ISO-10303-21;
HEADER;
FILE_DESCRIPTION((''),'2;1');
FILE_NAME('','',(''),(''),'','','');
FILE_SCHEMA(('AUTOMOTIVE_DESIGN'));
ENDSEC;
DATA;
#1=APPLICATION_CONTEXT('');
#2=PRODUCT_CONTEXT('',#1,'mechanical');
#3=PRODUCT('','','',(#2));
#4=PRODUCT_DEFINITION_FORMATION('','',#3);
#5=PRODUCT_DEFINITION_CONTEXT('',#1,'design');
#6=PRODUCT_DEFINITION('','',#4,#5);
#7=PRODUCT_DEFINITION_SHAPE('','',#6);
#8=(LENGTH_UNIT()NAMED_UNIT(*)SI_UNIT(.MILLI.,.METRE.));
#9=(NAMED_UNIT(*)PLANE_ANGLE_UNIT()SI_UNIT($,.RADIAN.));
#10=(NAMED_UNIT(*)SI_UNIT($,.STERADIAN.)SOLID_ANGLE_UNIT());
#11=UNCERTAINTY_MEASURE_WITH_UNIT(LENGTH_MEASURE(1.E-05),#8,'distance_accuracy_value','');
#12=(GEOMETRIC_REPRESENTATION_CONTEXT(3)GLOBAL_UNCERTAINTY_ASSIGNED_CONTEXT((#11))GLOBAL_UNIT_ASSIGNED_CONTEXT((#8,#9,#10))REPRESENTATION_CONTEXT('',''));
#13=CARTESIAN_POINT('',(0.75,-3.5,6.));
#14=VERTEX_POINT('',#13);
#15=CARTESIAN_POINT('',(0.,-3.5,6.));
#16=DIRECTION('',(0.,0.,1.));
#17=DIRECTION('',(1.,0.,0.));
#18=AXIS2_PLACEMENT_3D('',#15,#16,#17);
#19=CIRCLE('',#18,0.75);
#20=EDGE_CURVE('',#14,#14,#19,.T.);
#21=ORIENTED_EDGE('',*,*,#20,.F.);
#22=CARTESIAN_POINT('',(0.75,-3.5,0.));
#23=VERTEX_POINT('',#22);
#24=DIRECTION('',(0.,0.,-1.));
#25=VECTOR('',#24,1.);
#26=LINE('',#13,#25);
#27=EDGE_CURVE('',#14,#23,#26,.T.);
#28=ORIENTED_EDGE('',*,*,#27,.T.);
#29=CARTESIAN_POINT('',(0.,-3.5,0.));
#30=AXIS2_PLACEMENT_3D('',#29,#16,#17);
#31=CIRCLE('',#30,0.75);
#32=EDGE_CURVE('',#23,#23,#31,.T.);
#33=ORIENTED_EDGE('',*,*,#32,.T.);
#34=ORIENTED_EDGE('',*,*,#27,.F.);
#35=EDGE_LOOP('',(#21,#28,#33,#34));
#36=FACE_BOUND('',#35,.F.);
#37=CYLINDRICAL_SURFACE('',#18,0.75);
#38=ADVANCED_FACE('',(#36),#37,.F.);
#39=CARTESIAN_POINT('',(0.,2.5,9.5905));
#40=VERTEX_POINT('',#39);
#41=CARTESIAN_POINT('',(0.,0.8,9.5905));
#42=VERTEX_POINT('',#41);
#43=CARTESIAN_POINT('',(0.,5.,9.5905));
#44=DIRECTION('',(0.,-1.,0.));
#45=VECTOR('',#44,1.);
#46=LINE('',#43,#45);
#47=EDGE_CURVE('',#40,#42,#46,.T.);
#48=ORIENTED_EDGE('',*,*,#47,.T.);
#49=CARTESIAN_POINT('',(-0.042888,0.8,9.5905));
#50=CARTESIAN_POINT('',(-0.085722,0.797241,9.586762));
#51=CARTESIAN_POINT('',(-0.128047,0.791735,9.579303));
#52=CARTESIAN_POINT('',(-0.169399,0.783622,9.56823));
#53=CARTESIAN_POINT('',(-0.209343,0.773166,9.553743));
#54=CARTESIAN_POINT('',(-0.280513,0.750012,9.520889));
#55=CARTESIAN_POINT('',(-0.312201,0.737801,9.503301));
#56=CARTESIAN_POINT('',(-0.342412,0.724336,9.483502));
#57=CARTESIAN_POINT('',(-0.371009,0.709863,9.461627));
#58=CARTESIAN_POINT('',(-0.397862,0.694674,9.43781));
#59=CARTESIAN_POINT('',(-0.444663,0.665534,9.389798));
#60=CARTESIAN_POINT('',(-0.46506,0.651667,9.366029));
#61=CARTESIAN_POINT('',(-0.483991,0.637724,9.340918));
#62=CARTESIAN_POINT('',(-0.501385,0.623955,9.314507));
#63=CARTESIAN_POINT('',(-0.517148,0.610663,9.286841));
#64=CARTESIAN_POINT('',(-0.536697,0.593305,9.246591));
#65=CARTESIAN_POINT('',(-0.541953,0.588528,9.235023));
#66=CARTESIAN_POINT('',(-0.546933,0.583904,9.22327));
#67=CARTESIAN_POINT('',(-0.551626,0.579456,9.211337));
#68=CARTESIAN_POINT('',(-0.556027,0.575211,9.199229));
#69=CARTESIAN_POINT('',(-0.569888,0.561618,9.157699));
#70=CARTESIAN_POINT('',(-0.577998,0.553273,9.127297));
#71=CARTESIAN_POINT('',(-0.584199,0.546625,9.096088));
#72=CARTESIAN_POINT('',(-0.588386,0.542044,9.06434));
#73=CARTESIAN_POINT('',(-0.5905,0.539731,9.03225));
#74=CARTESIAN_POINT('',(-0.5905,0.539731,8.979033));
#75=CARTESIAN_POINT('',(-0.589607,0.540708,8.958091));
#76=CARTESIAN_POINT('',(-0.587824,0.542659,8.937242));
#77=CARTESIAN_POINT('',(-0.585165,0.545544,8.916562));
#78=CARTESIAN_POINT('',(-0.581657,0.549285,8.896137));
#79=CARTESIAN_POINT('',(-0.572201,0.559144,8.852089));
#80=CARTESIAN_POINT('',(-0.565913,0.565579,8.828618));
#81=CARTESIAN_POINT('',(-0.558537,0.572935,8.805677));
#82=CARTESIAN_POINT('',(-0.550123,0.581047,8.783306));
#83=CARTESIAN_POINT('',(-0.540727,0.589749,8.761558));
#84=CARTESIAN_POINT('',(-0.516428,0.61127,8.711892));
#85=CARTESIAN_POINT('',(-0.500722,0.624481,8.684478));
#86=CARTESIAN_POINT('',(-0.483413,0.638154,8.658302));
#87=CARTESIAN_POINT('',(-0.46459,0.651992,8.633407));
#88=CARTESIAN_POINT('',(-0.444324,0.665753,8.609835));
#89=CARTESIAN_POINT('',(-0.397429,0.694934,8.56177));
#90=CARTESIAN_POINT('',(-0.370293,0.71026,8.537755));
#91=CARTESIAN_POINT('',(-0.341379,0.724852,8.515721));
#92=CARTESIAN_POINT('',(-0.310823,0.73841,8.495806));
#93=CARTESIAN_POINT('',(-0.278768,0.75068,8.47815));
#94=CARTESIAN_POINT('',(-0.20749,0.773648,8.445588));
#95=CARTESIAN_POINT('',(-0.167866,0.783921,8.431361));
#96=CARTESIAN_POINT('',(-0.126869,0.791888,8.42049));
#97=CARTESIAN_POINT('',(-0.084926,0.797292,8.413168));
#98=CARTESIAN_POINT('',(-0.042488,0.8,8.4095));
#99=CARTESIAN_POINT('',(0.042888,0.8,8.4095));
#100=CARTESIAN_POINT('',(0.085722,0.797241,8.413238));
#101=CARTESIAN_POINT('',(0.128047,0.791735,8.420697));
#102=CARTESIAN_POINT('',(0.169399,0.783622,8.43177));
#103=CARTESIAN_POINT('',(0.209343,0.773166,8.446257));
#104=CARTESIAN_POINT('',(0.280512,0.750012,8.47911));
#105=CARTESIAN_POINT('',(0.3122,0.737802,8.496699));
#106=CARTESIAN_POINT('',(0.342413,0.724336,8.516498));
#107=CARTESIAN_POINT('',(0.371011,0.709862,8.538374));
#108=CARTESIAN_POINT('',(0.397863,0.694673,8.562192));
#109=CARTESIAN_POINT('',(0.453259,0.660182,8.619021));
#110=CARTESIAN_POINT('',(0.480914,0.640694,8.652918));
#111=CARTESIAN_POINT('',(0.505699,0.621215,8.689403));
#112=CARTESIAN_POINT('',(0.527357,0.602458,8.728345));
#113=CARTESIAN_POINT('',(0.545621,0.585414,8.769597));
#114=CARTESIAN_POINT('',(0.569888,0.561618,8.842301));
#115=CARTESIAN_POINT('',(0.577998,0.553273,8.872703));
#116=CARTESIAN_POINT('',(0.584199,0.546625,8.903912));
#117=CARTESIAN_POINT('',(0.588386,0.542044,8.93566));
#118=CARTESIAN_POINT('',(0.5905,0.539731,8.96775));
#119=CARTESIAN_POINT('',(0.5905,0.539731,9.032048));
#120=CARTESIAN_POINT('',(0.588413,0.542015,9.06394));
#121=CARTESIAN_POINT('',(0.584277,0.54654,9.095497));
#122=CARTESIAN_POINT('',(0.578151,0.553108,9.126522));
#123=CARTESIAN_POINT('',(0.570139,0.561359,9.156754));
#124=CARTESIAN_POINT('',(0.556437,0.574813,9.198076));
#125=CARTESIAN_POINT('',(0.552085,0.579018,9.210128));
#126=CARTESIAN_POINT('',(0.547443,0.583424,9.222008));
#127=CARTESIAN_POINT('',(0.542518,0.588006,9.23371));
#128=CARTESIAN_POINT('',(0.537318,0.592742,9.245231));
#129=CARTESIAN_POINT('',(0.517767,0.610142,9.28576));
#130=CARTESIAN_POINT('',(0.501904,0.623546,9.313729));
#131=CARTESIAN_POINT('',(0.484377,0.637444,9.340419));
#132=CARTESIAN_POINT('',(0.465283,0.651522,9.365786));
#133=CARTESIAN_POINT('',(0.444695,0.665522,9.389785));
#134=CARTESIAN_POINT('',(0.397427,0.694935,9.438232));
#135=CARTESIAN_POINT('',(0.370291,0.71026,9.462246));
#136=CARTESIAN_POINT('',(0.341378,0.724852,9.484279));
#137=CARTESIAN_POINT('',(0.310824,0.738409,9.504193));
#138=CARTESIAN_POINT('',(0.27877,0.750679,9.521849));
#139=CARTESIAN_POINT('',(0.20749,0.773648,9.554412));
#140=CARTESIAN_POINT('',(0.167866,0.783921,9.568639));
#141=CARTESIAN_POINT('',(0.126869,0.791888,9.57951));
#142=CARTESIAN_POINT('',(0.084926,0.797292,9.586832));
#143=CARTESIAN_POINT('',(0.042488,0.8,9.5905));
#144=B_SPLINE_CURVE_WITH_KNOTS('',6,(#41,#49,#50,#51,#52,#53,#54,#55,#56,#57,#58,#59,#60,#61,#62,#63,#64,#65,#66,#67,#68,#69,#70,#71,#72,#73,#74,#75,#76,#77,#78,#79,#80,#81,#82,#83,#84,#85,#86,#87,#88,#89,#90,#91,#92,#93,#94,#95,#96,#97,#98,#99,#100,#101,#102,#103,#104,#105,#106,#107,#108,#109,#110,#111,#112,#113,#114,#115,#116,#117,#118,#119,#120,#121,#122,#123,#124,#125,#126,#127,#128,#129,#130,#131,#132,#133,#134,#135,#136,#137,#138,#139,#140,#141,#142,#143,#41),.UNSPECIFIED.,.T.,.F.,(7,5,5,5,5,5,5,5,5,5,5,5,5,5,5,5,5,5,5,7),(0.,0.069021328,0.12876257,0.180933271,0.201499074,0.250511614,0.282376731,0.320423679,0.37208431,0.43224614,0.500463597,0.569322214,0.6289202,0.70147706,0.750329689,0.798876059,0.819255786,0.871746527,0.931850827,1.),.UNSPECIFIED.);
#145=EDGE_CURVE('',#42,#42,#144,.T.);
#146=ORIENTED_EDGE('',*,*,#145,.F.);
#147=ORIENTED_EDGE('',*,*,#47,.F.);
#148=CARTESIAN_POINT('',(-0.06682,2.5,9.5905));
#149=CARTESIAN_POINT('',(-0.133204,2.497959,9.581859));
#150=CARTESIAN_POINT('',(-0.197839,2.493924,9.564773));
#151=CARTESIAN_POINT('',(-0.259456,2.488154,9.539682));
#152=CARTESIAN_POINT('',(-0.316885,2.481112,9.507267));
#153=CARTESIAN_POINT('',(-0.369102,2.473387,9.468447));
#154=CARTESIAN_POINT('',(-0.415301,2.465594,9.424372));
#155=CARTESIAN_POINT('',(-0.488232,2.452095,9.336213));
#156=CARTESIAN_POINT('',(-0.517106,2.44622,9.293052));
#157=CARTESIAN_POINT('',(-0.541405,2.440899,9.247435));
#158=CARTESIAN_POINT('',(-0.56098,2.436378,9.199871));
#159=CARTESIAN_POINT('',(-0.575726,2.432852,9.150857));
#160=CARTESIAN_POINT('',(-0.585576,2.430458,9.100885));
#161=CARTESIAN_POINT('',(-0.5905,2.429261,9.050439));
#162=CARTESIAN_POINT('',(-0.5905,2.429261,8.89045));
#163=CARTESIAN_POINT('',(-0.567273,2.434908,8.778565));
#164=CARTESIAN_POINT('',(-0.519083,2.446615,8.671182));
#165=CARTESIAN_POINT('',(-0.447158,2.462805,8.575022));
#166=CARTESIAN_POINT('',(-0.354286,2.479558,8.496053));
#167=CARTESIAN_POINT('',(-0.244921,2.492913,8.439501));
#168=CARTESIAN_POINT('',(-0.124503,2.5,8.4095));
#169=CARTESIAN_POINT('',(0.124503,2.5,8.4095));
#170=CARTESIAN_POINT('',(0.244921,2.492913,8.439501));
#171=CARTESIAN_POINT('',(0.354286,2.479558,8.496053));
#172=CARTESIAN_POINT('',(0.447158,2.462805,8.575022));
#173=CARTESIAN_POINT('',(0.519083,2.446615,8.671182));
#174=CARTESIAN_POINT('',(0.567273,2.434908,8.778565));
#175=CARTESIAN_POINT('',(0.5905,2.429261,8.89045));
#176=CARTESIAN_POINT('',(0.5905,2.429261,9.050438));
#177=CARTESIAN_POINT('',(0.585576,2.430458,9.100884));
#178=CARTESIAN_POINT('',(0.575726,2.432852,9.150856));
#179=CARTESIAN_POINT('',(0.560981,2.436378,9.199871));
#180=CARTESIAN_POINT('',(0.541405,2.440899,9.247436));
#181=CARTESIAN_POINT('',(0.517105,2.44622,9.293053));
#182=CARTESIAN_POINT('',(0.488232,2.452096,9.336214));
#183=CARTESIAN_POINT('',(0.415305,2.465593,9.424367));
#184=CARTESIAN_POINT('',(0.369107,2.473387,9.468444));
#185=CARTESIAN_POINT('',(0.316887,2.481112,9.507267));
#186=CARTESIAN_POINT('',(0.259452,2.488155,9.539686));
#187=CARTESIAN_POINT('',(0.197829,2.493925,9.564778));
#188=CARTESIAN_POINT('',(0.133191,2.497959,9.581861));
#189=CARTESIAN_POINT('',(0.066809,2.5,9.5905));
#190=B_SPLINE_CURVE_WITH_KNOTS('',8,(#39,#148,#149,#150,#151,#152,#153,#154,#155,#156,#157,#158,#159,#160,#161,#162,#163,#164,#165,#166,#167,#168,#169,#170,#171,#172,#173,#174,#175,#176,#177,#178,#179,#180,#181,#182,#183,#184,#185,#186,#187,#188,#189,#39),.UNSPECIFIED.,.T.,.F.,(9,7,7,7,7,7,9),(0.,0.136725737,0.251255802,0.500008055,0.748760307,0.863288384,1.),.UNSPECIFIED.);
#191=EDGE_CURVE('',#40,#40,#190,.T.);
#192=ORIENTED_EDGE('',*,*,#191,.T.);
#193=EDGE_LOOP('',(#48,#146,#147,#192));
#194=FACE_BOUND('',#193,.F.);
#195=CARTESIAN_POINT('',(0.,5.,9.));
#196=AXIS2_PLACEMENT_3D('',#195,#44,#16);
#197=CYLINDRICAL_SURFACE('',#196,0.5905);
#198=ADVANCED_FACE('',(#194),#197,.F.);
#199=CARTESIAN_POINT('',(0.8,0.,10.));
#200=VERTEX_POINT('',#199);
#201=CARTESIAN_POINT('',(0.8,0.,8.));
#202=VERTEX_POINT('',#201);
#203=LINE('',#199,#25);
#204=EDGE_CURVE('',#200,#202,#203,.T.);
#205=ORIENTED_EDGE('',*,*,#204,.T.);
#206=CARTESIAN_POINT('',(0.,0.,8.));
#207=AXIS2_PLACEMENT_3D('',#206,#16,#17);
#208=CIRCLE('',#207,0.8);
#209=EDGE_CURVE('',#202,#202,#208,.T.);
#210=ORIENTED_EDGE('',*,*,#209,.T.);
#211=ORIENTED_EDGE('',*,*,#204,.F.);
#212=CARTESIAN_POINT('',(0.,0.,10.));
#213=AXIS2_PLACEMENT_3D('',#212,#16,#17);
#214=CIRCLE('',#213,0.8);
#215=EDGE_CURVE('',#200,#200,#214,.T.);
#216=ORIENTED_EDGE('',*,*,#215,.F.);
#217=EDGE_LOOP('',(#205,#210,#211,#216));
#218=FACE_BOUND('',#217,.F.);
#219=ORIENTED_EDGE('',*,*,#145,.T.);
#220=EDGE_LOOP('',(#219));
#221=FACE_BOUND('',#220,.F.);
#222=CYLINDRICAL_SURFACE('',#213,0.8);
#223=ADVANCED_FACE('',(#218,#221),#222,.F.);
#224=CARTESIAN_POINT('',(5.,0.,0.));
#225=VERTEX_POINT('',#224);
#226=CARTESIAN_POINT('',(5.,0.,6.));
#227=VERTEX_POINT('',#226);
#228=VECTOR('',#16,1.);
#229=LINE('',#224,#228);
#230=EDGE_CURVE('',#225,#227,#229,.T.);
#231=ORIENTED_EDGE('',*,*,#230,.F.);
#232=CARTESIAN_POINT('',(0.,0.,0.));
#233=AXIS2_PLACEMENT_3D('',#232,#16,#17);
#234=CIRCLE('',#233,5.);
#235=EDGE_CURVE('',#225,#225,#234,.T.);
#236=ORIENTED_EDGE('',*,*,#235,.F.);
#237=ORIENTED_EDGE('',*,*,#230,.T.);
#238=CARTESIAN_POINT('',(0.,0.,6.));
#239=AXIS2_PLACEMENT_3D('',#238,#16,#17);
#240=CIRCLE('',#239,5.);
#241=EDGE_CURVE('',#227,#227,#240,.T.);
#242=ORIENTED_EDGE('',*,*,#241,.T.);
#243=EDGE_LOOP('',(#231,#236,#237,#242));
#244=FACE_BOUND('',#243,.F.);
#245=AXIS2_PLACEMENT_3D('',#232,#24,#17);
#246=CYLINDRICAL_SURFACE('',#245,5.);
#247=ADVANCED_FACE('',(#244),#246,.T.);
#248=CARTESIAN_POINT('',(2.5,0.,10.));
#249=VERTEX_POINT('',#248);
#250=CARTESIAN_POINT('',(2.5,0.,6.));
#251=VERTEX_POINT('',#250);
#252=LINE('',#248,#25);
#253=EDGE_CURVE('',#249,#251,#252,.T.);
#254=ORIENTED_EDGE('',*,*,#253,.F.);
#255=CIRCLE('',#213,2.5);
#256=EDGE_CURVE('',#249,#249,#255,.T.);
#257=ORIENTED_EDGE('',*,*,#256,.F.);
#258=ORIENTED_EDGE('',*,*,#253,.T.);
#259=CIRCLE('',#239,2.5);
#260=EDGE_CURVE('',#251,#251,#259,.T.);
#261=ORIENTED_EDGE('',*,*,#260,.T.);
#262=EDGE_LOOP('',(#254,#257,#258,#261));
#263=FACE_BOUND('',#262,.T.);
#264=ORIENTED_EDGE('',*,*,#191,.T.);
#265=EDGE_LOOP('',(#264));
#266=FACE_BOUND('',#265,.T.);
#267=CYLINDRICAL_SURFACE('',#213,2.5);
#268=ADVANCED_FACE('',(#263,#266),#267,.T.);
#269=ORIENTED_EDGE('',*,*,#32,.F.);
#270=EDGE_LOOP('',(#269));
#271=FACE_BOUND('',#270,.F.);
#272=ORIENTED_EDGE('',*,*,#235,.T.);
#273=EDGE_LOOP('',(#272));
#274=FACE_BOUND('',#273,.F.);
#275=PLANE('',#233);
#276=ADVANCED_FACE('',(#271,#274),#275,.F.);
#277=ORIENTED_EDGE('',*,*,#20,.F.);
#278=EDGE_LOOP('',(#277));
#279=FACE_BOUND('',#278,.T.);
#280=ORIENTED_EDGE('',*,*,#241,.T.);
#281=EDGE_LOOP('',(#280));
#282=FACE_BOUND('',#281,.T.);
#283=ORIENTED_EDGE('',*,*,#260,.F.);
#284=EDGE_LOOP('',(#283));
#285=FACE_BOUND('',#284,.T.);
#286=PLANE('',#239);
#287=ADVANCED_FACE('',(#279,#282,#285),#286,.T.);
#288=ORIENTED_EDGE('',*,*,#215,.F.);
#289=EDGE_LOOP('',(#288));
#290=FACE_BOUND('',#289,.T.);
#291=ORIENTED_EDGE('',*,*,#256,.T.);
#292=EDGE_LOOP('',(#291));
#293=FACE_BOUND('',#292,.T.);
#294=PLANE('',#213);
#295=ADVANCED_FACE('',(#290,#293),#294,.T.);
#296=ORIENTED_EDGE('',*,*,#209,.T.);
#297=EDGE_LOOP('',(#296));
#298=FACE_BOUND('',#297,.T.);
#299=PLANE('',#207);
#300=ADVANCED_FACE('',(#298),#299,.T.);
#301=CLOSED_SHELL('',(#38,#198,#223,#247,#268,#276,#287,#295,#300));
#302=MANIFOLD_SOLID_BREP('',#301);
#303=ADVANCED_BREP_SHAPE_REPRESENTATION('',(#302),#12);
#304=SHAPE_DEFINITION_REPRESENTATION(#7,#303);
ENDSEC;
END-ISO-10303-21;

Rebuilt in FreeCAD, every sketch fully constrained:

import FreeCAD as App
import Part
import Sketcher

V = App.Vector
Q = App.Units.Quantity

doc = App.newDocument("Part")
body = doc.addObject("PartDesign::Body", "Body")

# Sketch on XY plane
sketch1 = body.newObject("Sketcher::SketchObject", "Sketch")
sketch1.AttachmentSupport = (doc.getObject("XY_Plane"), [""])
sketch1.MapMode = "FlatFace"
sketch1.addGeometry(Part.Circle(V(0, 0, 0), V(0, 0, 1), 5), False)
sketch1.addConstraint(Sketcher.Constraint("Coincident", 0, 3, -1, 1))
sketch1.addConstraint(Sketcher.Constraint("Diameter", 0, Q("10 mm")))
pad1 = body.newObject("PartDesign::Pad", "Pad")
pad1.Profile = sketch1
pad1.Length = 10

# Sketch on XY plane
sketch2 = body.newObject("Sketcher::SketchObject", "Sketch001")
sketch2.AttachmentSupport = (doc.getObject("XY_Plane"), [""])
sketch2.MapMode = "FlatFace"
sketch2.AttachmentOffset = App.Placement(V(0, 0, 10), App.Rotation())
sketch2.addGeometry(Part.Circle(V(0, 0, 0), V(0, 0, 1), 0.8), False)
sketch2.addConstraint(Sketcher.Constraint("Coincident", 0, 3, -1, 1))
sketch2.addConstraint(Sketcher.Constraint("Diameter", 0, Q("1.6 mm")))
pocket1 = body.newObject("PartDesign::Pocket", "Pocket")
pocket1.Profile = sketch2
pocket1.Length = 2

# Sketch on XZ plane
sketch3 = body.newObject("Sketcher::SketchObject", "Sketch002")
sketch3.AttachmentSupport = (doc.getObject("XZ_Plane"), [""])
sketch3.MapMode = "FlatFace"
sketch3.AttachmentOffset = App.Placement(V(0, 0, -5), App.Rotation())
sketch3.addGeometry(Part.Circle(V(0, 9, 0), V(0, 0, 1), 0.5905), False)
sketch3.addConstraint(Sketcher.Constraint("PointOnObject", 0, 3, -2))
sketch3.addConstraint(Sketcher.Constraint("Diameter", 0, Q("1.181 mm")))
sketch3.addConstraint(Sketcher.Constraint("DistanceY", -1, 1, 0, 3, Q("9 mm")))
doc.recompute()
hole = body.newObject("PartDesign::Hole", "Hole")
hole.Profile = sketch3
hole.ThreadType = "None"
hole.Diameter = 1.181
hole.DepthType = "Dimension"
hole.Depth = 5
hole.DrillPoint = "Flat"
hole.Reversed = True

# Sketch on XY plane
sketch4 = body.newObject("Sketcher::SketchObject", "Sketch003")
sketch4.AttachmentSupport = (doc.getObject("XY_Plane"), [""])
sketch4.MapMode = "FlatFace"
sketch4.AttachmentOffset = App.Placement(V(0, 0, 10), App.Rotation())
sketch4.addGeometry(Part.Circle(V(0, 0, 0), V(0, 0, 1), 5), False)
sketch4.addGeometry(Part.Circle(V(0, 0, 0), V(0, 0, 1), 2.5), False)
sketch4.addConstraint(Sketcher.Constraint("Coincident", 0, 3, -1, 1))
sketch4.addConstraint(Sketcher.Constraint("Coincident", 1, 3, -1, 1))
sketch4.addConstraint(Sketcher.Constraint("Diameter", 0, Q("10 mm")))
sketch4.addConstraint(Sketcher.Constraint("Diameter", 1, Q("5 mm")))
pocket2 = body.newObject("PartDesign::Pocket", "Pocket001")
pocket2.Profile = sketch4
pocket2.Length = 4

# Sketch on XY plane
sketch5 = body.newObject("Sketcher::SketchObject", "Sketch004")
sketch5.AttachmentSupport = (doc.getObject("XY_Plane"), [""])
sketch5.MapMode = "FlatFace"
sketch5.AttachmentOffset = App.Placement(V(0, 0, 6), App.Rotation())
sketch5.addGeometry(Part.Circle(V(0, -3.5, 0), V(0, 0, 1), 0.75), False)
sketch5.addConstraint(Sketcher.Constraint("PointOnObject", 0, 3, -2))
sketch5.addConstraint(Sketcher.Constraint("Diameter", 0, Q("1.5 mm")))
sketch5.addConstraint(Sketcher.Constraint("DistanceY", 0, 3, -1, 1, Q("3.5 mm")))
pocket3 = body.newObject("PartDesign::Pocket", "Pocket002")
pocket3.Profile = sketch5
pocket3.Type = "ThroughAll"

doc.recompute()
